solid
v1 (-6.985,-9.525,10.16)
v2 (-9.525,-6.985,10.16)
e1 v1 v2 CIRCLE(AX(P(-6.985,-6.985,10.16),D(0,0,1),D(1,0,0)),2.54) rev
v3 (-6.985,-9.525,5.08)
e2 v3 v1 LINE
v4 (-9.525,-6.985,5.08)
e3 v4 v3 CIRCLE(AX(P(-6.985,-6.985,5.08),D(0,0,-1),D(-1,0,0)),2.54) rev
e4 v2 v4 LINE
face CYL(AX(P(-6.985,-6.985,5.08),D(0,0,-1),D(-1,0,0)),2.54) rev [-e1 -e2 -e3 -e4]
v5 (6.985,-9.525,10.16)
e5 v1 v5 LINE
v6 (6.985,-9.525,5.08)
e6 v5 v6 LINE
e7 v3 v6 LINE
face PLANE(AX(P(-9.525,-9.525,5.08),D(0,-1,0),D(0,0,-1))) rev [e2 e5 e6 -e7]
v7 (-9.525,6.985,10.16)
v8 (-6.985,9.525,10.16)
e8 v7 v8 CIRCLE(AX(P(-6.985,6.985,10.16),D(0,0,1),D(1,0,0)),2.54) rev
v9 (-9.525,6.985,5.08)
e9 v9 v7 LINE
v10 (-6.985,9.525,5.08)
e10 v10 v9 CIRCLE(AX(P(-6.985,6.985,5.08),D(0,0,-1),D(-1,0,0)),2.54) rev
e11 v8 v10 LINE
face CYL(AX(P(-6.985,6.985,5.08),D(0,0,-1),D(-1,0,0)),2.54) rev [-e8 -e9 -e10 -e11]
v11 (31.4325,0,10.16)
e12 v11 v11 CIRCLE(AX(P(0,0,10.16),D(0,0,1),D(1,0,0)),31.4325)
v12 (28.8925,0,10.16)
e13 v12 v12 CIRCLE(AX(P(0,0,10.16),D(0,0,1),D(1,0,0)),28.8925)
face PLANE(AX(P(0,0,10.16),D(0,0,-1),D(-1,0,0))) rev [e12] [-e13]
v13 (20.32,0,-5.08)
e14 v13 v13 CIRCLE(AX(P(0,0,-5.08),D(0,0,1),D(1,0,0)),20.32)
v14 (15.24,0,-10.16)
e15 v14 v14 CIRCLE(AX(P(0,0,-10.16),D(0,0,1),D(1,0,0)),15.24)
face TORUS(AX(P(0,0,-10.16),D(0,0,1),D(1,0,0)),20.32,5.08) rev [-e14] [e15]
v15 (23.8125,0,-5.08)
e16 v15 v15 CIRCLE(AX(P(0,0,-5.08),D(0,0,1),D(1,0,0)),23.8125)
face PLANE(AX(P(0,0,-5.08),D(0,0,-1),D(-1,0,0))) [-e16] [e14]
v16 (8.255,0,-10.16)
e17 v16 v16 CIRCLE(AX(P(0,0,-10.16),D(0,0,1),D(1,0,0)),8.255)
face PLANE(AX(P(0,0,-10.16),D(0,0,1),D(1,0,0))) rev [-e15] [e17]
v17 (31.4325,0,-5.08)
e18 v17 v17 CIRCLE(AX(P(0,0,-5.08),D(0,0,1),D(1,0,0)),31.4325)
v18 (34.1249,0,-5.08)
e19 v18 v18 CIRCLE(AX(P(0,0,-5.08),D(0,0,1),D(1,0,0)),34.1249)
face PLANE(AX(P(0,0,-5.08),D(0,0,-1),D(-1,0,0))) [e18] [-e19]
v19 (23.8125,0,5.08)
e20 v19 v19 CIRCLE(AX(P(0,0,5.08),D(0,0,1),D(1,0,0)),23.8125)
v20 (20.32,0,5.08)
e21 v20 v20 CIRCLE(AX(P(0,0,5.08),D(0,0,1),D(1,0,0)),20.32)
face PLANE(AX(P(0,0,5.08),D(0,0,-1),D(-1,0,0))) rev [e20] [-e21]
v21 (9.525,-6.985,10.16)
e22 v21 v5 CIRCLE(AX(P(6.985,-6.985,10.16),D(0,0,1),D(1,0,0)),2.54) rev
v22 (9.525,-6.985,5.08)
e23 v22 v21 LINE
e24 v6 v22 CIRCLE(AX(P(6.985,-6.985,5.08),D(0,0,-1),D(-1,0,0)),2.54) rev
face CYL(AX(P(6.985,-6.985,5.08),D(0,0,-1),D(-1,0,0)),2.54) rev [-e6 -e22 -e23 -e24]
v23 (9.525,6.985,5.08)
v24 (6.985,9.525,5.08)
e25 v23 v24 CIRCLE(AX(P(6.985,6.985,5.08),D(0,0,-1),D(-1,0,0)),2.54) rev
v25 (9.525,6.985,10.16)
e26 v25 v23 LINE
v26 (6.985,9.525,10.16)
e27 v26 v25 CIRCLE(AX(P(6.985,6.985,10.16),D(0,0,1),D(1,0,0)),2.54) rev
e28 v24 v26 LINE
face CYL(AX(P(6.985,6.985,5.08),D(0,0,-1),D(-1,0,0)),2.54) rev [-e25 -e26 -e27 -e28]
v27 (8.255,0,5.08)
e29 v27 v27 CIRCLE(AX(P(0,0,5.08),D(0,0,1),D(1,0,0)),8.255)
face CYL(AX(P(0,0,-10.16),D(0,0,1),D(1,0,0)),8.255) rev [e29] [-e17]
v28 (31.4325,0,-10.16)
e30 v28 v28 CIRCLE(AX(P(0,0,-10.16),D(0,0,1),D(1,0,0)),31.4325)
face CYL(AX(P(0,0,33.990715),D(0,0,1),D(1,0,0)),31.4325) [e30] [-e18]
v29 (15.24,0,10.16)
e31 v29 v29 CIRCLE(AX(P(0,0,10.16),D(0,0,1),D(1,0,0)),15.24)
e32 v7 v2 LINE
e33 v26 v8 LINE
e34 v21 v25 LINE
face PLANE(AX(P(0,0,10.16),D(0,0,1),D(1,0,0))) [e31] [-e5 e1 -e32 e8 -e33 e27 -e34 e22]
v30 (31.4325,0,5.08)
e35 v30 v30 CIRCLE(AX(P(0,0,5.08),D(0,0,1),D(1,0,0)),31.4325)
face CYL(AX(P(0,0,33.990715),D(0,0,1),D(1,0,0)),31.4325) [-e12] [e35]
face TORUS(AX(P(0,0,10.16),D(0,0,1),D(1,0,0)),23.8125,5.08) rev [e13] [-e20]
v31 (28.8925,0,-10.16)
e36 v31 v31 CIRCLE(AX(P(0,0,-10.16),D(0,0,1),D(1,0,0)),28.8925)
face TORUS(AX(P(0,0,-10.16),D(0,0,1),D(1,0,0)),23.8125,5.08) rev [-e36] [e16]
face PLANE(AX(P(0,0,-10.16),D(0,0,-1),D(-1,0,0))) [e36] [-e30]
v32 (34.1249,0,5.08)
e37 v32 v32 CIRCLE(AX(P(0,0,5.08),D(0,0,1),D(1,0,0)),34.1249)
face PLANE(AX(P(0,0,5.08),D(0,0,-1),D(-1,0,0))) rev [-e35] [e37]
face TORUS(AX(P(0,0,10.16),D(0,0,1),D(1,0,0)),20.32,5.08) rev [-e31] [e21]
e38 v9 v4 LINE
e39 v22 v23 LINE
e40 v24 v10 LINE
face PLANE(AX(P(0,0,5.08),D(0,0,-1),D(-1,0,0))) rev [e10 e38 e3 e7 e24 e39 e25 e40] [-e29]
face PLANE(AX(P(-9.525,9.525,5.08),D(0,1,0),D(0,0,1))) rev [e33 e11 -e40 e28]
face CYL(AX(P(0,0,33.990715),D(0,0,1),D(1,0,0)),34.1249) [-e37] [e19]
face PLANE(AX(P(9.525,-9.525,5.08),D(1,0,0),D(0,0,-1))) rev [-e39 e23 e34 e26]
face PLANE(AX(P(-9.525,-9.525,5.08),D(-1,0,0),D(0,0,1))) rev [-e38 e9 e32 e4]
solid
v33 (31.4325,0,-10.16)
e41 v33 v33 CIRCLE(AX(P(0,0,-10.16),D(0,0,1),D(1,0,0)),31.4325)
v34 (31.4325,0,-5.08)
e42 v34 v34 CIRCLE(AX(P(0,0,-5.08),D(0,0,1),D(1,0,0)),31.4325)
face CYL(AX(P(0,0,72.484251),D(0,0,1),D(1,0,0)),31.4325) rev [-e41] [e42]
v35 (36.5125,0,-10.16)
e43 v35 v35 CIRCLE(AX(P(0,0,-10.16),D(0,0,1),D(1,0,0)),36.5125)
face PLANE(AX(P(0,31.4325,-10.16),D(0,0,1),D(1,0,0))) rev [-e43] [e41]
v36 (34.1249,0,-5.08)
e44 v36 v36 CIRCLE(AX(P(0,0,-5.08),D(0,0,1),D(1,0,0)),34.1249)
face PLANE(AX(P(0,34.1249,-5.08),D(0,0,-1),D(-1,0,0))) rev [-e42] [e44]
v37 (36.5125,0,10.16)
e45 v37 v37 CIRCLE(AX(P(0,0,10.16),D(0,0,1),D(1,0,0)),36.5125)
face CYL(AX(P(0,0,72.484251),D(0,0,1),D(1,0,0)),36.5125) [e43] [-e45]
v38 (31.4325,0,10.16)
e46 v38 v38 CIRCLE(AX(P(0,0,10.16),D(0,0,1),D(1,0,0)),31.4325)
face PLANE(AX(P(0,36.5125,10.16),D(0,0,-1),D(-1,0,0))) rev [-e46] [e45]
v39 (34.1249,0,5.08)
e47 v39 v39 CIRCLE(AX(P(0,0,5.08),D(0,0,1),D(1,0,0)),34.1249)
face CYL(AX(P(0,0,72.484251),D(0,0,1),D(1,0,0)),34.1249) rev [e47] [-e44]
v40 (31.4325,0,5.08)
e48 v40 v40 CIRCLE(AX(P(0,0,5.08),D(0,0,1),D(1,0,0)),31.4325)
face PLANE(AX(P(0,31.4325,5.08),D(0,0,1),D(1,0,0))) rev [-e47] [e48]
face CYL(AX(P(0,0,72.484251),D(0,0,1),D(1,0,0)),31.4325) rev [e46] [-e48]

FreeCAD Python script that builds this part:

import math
import FreeCAD as App
import Part
import Sketcher

V = App.Vector
Q = App.Units.Quantity


def edges_at(feature, points):
    """Names of the edges that pass closest to the given points."""
    edges = feature.Shape.Edges
    near = lambda p: min(range(len(edges)), key=lambda i: edges[i].distToShape(Part.Vertex(*p))[0])
    return sorted({f"Edge{near(p) + 1}" for p in points})


def add_polygon(sketch, points):
    """Adds a closed chain of lines whose ends are joined by coincident constraints."""
    first, n = sketch.GeometryCount, len(points)
    for a, b in zip(points, points[1:] + points[:1]):
        sketch.addGeometry(Part.LineSegment(App.Vector(*a, 0), App.Vector(*b, 0)), False)
    for i in range(n):
        sketch.addConstraint(Sketcher.Constraint("Coincident", first + i, 2, first + (i + 1) % n, 1))

doc = App.newDocument("Part")
body = doc.addObject("PartDesign::Body", "Body")

# Sketch on YZ plane
sketch1 = body.newObject("Sketcher::SketchObject", "Sketch")
sketch1.AttachmentSupport = (doc.getObject("YZ_Plane"), [""])
sketch1.MapMode = "FlatFace"
sketch1.addGeometry([
    Part.LineSegment(V(31.4325, 10.16, 0), V(28.8925, 10.16, 0)),  # 0
    Part.ArcOfCircle(Part.Circle(V(23.8125, 10.16, 0), V(0, 0, 1), 5.08), math.radians(-90), math.radians(0)),  # 1
    Part.LineSegment(V(23.8125, 5.08, 0), V(20.32, 5.08, 0)),  # 2
    Part.ArcOfCircle(Part.Circle(V(20.32, 10.16, 0), V(0, 0, 1), 5.08), math.radians(-180), math.radians(-90)),  # 3
    Part.LineSegment(V(15.24, 10.16, 0), V(0, 10.16, 0)),  # 4
    Part.LineSegment(V(0, 10.16, 0), V(0, -10.16, 0)),  # 5
    Part.LineSegment(V(0, -10.16, 0), V(15.24, -10.16, 0)),  # 6
    Part.ArcOfCircle(Part.Circle(V(20.32, -10.16, 0), V(0, 0, 1), 5.08), math.radians(90), math.radians(180)),  # 7
    Part.LineSegment(V(20.32, -5.08, 0), V(23.8125, -5.08, 0)),  # 8
    Part.ArcOfCircle(Part.Circle(V(23.8125, -10.16, 0), V(0, 0, 1), 5.08), math.radians(0), math.radians(90)),  # 9
    Part.LineSegment(V(28.8925, -10.16, 0), V(31.4325, -10.16, 0)),  # 10
    Part.LineSegment(V(31.4325, -10.16, 0), V(31.4325, -5.08, 0)),  # 11
    Part.LineSegment(V(31.4325, -5.08, 0), V(34.1249, -5.08, 0)),  # 12
    Part.LineSegment(V(34.1249, -5.08, 0), V(34.1249, 5.08, 0)),  # 13
    Part.LineSegment(V(34.1249, 5.08, 0), V(31.4325, 5.08, 0)),  # 14
    Part.LineSegment(V(31.4325, 5.08, 0), V(31.4325, 10.16, 0)),  # 15
], False)
sketch1.addConstraint([
    Sketcher.Constraint("Coincident", 0, 2, 1, 2),
    Sketcher.Constraint("Tangent", 1, 1, 2, 1),
    Sketcher.Constraint("Tangent", 2, 2, 3, 2),
    Sketcher.Constraint("Coincident", 3, 1, 4, 1),
    Sketcher.Constraint("Coincident", 4, 2, 5, 1),
    Sketcher.Constraint("Coincident", 5, 2, 6, 1),
    Sketcher.Constraint("Coincident", 6, 2, 7, 2),
    Sketcher.Constraint("Tangent", 7, 1, 8, 1),
    Sketcher.Constraint("Tangent", 8, 2, 9, 2),
    Sketcher.Constraint("Coincident", 9, 1, 10, 1),
    Sketcher.Constraint("Coincident", 10, 2, 11, 1),
    Sketcher.Constraint("Coincident", 11, 2, 12, 1),
    Sketcher.Constraint("Coincident", 12, 2, 13, 1),
    Sketcher.Constraint("Coincident", 13, 2, 14, 1),
    Sketcher.Constraint("Coincident", 14, 2, 15, 1),
    Sketcher.Constraint("Coincident", 15, 2, 0, 1),
    Sketcher.Constraint("Horizontal", 0),
    Sketcher.Constraint("Horizontal", 2),
    Sketcher.Constraint("Horizontal", 4),
    Sketcher.Constraint("Vertical", 5),
    Sketcher.Constraint("Horizontal", 6),
    Sketcher.Constraint("Horizontal", 8),
    Sketcher.Constraint("Horizontal", 10),
    Sketcher.Constraint("Vertical", 11),
    Sketcher.Constraint("Horizontal", 12),
    Sketcher.Constraint("Vertical", 13),
    Sketcher.Constraint("Horizontal", 14),
    Sketcher.Constraint("Vertical", 15),
    Sketcher.Constraint("Equal", 1, 3),
    Sketcher.Constraint("Equal", 3, 7),
    Sketcher.Constraint("Equal", 7, 9),
    Sketcher.Constraint("Symmetric", 4, 2, 5, 2, -1, 1),
    Sketcher.Constraint("Symmetric", 3, 3, 7, 3, -1),
    Sketcher.Constraint("Symmetric", 0, 2, 9, 1, -1),
    Sketcher.Constraint("Symmetric", 11, 2, 14, 2, -1),
    Sketcher.Constraint("Horizontal", 3, 3, 0, 2),
    Sketcher.Constraint("Horizontal", 0, 2, 3, 1),
    Sketcher.Constraint("Horizontal", 8, 2, 11, 2),
    Sketcher.Constraint("Radius", 1, Q("0.2 in")),
    Sketcher.Constraint("DistanceX", 0, 2, 0, 1, Q("0.1 in")),
    Sketcher.Constraint("DistanceX", 4, 2, 4, 1, Q("0.6 in")),
    Sketcher.Constraint("DistanceY", 5, 2, 5, 1, Q("0.8 in")),
    Sketcher.Constraint("DistanceX", 12, 1, 12, 2, Q("0.106 in")),
    Sketcher.Constraint("DistanceX", 2, 2, 2, 1, Q("0.1375 in")),
])
revolution = body.newObject("PartDesign::Revolution", "Revolution")
revolution.Profile = sketch1
revolution.ReferenceAxis = (sketch1, ["V_Axis"])
revolution.Angle = 360

# Sketch on XY plane
sketch2 = body.newObject("Sketcher::SketchObject", "Sketch001")
sketch2.AttachmentSupport = (doc.getObject("XY_Plane"), [""])
sketch2.MapMode = "FlatFace"
sketch2.AttachmentOffset = App.Placement(V(0, 0, 0.4 * 25.4), App.Rotation())
add_polygon(sketch2, [(-9.525, 9.525), (-9.525, -9.525), (9.525, -9.525), (9.525, 9.525)])  # lines 0-3
sketch2.addConstraint([
    Sketcher.Constraint("Vertical", 0),
    Sketcher.Constraint("Horizontal", 1),
    Sketcher.Constraint("Vertical", 2),
    Sketcher.Constraint("Horizontal", 3),
    Sketcher.Constraint("Symmetric", 0, 2, 2, 2, -1, 1),
    Sketcher.Constraint("Equal", 3, 0),
    Sketcher.Constraint("DistanceX", 1, 1, 1, 2, Q("0.75 in")),
])
pocket1 = body.newObject("PartDesign::Pocket", "Pocket")
pocket1.Profile = sketch2
pocket1.Length = Q("0.2 in")

# Sketch on XY plane
sketch3 = body.newObject("Sketcher::SketchObject", "Sketch002")
sketch3.AttachmentSupport = (doc.getObject("XY_Plane"), [""])
sketch3.MapMode = "FlatFace"
sketch3.AttachmentOffset = App.Placement(V(0, 0, 0.2 * 25.4), App.Rotation())
sketch3.addGeometry(Part.Circle(V(0, 0, 0), V(0, 0, 1), 8.255), False)
sketch3.addConstraint([
    Sketcher.Constraint("Coincident", 0, 3, -1, 1),
    Sketcher.Constraint("Diameter", 0, Q("0.65 in")),
])
pocket2 = body.newObject("PartDesign::Pocket", "Pocket001")
pocket2.Profile = sketch3
pocket2.Type = "ThroughAll"
doc.recompute()

fillet = body.newObject("PartDesign::Fillet", "Fillet")
fillet.Base = (pocket2, edges_at(pocket2, [
    (9.525, 9.525, 7.62),
    (9.525, -9.525, 7.62),
    (-9.525, -9.525, 7.62),
    (-9.525, 9.525, 7.62),
]))
fillet.Radius = Q("0.1 in")
body2 = doc.addObject("PartDesign::Body", "Body001")

# Sketch on YZ plane
sketch4 = body2.newObject("Sketcher::SketchObject", "Sketch003")
sketch4.AttachmentSupport = (doc.getObject("YZ_Plane001"), [""])
sketch4.MapMode = "FlatFace"
add_polygon(sketch4, [(31.4325, 10.16), (31.4325, 5.08), (34.1249, 5.08), (34.1249, -5.08), (31.4325, -5.08), (31.4325, -10.16), (36.5125, -10.16), (36.5125, 10.16)])  # lines 0-7
sketch4.addConstraint([
    Sketcher.Constraint("Vertical", 0),
    Sketcher.Constraint("Horizontal", 1),
    Sketcher.Constraint("Vertical", 2),
    Sketcher.Constraint("Horizontal", 3),
    Sketcher.Constraint("Vertical", 4),
    Sketcher.Constraint("Horizontal", 5),
    Sketcher.Constraint("Vertical", 6),
    Sketcher.Constraint("Horizontal", 7),
    Sketcher.Constraint("Symmetric", 0, 2, 3, 2, -1),
    Sketcher.Constraint("Equal", 7, 0),
    Sketcher.Constraint("Equal", 0, 4),
    Sketcher.Constraint("DistanceX", 5, 1, 5, 2, Q("0.2 in")),
    Sketcher.Constraint("DistanceY", 2, 2, 2, 1, Q("0.4 in")),
    Sketcher.Constraint("DistanceX", 1, 1, 1, 2, Q("0.106 in")),
    Sketcher.Constraint("DistanceX", -1, 1, 5, 2, Q("1.4375 in")),
])
revolution2 = body2.newObject("PartDesign::Revolution", "Revolution001")
revolution2.Profile = sketch4
revolution2.ReferenceAxis = (sketch4, ["V_Axis"])
revolution2.Angle = 360

doc.recompute()
